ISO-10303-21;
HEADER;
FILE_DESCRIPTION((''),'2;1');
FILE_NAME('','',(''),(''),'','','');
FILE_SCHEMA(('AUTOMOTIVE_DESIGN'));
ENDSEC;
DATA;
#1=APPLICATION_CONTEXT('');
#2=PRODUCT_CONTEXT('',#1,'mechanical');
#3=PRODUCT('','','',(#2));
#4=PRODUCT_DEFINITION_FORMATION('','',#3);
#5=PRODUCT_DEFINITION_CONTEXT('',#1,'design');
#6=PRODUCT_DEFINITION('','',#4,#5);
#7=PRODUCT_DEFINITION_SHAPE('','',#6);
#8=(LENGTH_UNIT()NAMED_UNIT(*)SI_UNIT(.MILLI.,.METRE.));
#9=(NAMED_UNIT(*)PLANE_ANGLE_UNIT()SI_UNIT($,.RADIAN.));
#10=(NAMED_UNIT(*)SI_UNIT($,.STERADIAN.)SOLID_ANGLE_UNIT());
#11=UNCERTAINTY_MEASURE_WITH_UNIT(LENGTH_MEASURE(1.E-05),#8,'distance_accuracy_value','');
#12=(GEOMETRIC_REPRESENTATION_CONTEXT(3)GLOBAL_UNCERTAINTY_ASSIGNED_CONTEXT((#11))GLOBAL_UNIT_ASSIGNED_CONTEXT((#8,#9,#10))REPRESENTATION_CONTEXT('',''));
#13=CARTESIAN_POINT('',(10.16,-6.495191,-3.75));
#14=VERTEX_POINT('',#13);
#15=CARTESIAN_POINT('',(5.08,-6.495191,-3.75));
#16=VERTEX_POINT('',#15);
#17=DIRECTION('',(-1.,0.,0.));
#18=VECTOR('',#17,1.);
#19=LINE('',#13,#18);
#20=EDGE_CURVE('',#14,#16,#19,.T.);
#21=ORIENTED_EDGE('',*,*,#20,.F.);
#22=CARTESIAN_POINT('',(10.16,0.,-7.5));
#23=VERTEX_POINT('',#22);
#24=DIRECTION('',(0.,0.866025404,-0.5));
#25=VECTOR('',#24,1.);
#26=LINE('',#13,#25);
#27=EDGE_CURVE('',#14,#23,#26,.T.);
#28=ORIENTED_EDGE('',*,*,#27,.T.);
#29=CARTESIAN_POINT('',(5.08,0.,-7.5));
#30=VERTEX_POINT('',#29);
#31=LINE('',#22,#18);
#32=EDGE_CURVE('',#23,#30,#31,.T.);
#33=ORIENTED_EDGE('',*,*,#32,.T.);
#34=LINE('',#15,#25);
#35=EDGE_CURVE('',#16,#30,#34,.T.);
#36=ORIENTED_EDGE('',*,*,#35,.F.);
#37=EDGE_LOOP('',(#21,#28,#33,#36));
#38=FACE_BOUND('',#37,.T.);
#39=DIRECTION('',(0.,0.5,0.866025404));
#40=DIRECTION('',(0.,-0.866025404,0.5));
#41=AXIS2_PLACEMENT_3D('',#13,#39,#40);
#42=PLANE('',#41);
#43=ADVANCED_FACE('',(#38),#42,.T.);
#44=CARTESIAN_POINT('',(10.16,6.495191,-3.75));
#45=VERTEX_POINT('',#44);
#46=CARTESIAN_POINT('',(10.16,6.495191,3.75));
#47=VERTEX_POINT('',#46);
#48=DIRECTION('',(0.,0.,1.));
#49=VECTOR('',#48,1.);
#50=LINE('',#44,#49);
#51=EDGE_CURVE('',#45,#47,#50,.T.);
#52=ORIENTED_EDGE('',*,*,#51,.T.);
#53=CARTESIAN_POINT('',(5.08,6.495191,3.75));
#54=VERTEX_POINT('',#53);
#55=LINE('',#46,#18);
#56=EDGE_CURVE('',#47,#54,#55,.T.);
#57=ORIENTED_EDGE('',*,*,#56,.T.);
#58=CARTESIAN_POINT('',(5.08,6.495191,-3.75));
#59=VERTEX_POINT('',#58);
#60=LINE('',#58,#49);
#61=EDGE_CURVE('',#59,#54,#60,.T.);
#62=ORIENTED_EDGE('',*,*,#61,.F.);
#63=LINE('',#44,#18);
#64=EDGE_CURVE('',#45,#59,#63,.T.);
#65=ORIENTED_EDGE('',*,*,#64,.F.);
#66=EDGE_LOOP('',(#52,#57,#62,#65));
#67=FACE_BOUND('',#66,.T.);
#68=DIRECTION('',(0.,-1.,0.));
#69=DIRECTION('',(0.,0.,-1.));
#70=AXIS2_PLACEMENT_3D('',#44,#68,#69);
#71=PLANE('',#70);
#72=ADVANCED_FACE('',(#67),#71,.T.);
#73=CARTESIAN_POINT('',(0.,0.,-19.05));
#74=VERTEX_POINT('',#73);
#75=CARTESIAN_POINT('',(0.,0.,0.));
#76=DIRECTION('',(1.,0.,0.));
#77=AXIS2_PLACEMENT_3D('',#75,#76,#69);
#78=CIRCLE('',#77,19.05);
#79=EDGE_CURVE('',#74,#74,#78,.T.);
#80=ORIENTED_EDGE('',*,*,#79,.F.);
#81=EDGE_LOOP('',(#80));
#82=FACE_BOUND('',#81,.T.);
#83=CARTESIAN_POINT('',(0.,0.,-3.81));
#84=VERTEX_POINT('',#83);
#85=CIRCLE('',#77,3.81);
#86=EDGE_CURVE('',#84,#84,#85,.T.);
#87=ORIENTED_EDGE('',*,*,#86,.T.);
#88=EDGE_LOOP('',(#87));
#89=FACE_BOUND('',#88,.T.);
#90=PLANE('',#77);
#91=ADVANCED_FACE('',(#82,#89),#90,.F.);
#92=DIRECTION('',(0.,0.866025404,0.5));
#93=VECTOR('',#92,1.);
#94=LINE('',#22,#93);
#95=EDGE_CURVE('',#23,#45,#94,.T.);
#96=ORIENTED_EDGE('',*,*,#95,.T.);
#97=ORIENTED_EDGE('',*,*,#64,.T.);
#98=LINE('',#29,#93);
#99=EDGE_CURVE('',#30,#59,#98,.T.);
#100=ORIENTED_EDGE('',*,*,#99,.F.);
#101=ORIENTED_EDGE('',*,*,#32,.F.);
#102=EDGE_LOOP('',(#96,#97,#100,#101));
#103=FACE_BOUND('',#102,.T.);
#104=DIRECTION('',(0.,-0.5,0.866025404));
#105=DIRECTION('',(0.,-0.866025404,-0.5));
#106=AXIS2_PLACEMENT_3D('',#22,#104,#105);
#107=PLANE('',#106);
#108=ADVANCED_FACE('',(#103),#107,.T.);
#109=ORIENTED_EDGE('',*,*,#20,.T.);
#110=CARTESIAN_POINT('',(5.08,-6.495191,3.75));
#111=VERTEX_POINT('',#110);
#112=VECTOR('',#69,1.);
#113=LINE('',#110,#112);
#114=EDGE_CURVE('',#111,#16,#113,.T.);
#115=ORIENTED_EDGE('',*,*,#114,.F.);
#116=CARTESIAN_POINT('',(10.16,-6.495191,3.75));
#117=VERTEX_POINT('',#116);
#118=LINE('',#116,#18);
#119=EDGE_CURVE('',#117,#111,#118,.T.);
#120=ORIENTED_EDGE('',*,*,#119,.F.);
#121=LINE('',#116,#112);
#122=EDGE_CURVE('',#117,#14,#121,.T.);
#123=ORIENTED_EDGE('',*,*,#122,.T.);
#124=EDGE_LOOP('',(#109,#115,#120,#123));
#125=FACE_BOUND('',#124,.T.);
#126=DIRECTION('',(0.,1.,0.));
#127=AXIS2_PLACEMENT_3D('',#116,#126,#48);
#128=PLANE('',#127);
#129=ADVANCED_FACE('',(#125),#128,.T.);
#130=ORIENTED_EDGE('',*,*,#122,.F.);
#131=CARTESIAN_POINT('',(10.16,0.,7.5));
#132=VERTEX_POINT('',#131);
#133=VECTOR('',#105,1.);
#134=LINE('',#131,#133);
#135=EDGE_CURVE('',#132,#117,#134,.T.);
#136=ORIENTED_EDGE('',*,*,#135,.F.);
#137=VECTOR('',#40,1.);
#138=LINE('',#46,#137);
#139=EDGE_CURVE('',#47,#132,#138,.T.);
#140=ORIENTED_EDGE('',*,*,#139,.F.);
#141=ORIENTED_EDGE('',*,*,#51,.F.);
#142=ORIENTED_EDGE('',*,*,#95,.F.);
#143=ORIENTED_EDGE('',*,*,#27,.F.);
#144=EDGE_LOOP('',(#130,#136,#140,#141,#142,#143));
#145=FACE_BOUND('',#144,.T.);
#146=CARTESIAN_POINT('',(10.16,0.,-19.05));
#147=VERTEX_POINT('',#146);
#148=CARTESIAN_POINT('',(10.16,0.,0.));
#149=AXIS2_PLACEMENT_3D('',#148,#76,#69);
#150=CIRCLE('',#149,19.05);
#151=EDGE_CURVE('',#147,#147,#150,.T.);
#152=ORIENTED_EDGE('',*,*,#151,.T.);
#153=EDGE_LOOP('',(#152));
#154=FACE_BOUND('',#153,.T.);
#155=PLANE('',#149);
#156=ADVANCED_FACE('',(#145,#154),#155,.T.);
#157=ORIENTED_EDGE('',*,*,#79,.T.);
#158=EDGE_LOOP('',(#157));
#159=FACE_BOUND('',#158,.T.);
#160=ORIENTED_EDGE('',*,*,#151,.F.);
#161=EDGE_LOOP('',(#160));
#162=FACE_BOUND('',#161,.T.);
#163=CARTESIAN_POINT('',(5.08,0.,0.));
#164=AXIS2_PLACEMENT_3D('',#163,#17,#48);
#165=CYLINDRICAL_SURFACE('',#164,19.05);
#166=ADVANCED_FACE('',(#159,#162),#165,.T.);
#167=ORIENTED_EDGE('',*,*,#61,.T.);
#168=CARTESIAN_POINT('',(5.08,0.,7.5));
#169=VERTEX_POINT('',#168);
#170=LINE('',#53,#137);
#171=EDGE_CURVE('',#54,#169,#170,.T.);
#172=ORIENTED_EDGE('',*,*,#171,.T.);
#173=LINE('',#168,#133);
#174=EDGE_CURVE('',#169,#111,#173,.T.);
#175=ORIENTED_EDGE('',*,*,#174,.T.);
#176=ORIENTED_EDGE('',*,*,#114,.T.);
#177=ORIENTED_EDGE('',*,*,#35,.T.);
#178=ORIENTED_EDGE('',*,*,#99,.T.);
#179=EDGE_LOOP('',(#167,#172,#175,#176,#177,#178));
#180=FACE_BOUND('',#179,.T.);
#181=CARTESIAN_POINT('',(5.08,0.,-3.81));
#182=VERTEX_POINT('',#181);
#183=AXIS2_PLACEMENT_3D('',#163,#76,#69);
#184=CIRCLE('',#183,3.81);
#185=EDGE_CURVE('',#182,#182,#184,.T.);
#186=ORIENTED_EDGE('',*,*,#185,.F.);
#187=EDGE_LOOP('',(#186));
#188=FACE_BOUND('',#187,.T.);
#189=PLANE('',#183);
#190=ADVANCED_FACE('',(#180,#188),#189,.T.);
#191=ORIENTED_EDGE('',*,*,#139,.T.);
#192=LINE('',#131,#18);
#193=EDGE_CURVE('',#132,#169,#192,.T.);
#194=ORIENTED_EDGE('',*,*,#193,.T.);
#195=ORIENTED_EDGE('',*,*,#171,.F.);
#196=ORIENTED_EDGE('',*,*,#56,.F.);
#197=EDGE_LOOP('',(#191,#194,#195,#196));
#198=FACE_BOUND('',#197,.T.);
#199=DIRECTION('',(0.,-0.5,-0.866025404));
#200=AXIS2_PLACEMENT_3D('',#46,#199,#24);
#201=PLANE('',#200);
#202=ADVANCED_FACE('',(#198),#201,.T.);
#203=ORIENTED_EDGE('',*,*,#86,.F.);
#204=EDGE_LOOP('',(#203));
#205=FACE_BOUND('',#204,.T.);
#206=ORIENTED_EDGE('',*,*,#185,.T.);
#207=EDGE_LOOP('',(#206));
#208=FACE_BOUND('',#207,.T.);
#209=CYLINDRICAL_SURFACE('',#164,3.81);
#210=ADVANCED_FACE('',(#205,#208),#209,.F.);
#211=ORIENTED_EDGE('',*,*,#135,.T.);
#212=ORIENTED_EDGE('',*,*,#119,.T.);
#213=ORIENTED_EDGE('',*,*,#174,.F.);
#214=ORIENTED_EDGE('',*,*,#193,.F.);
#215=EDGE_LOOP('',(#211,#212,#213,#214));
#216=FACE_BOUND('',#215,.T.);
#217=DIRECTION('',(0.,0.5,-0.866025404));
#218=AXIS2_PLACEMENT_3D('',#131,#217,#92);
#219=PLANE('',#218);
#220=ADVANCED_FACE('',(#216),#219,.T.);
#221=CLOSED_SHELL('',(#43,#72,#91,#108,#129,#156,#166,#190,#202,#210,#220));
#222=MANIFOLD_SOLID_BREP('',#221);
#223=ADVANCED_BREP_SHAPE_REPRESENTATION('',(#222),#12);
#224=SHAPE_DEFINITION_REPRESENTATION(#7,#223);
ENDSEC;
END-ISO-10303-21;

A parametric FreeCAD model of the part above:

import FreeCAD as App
import Part
import Sketcher
Q = App.Units.Quantity

doc = App.newDocument("Part")
body = doc.addObject("PartDesign::Body", "Body")

# Sketch on YZ plane
sketch1 = doc.addObject("Sketcher::SketchObject", "Sketch")
body.addObject(sketch1)
sketch1.AttachmentSupport = (doc.YZ_Plane, [""])
sketch1.MapMode = "FlatFace"
sketch1.addGeometry(Part.Circle(App.Vector(0, 0, 0), App.Vector(0, 0, 1), 19.1), False)
sketch1.addGeometry(Part.Circle(App.Vector(0, 0, 0), App.Vector(0, 0, 1), 3.8), False)
sketch1.addConstraint(Sketcher.Constraint("Coincident", 0, 3, -1, 1))
sketch1.addConstraint(Sketcher.Constraint("Coincident", 1, 3, -1, 1))
sketch1.addConstraint(Sketcher.Constraint("Diameter", 0, Q("1.5 in")))
sketch1.addConstraint(Sketcher.Constraint("Diameter", 1, Q("0.3 in")))
pad1 = doc.addObject("PartDesign::Pad", "Pad")
body.addObject(pad1)
pad1.Profile = sketch1
pad1.Length = Q("0.2 in")

# Sketch on YZ plane
sketch2 = doc.addObject("Sketcher::SketchObject", "Sketch001")
body.addObject(sketch2)
sketch2.AttachmentSupport = (doc.YZ_Plane, [""])
sketch2.MapMode = "FlatFace"
sketch2.AttachmentOffset = App.Placement(App.Vector(0, 0, 0.2 * 25.4), App.Rotation())
sketch2.addGeometry(Part.Circle(App.Vector(0, 0, 0), App.Vector(0, 0, 1), 19), False)
sketch2.addGeometry(Part.LineSegment(App.Vector(6, -4, 0), App.Vector(0, -8, 0)), False)
sketch2.addGeometry(Part.LineSegment(App.Vector(0, -8, 0), App.Vector(-6, -4, 0)), False)
sketch2.addGeometry(Part.LineSegment(App.Vector(-6, -4, 0), App.Vector(-6, 4, 0)), False)
sketch2.addGeometry(Part.LineSegment(App.Vector(-6, 4, 0), App.Vector(0, 8, 0)), False)
sketch2.addGeometry(Part.LineSegment(App.Vector(0, 8, 0), App.Vector(6, 4, 0)), False)
sketch2.addGeometry(Part.LineSegment(App.Vector(6, 4, 0), App.Vector(6, -4, 0)), False)
sketch2.addConstraint(Sketcher.Constraint("Coincident", 1, 2, 2, 1))
sketch2.addConstraint(Sketcher.Constraint("Coincident", 2, 2, 3, 1))
sketch2.addConstraint(Sketcher.Constraint("Coincident", 3, 2, 4, 1))
sketch2.addConstraint(Sketcher.Constraint("Coincident", 4, 2, 5, 1))
sketch2.addConstraint(Sketcher.Constraint("Coincident", 5, 2, 6, 1))
sketch2.addConstraint(Sketcher.Constraint("Coincident", 6, 2, 1, 1))
sketch2.addConstraint(Sketcher.Constraint("Vertical", 3))
sketch2.addConstraint(Sketcher.Constraint("Vertical", 6))
sketch2.addConstraint(Sketcher.Constraint("Coincident", 0, 3, -1, 1))
sketch2.addConstraint(Sketcher.Constraint("Symmetric", 1, 2, 4, 2, -1, 1))
sketch2.addConstraint(Sketcher.Constraint("Symmetric", 2, 2, 5, 2, -1, 1))
sketch2.addConstraint(Sketcher.Constraint("PointOnObject", 1, 2, -2))
sketch2.addConstraint(Sketcher.Constraint("Parallel", 1, 4))
sketch2.addConstraint(Sketcher.Constraint("Horizontal", 3, 2, 5, 2))
sketch2.addConstraint(Sketcher.Constraint("Diameter", 0, Q("1.5 in")))
sketch2.addConstraint(Sketcher.Constraint("Angle", 1, Q("-150 deg")))
sketch2.addConstraint(Sketcher.Constraint("DistanceY", 3, 1, 3, 2, Q("7.5 mm")))
sketch2.addConstraint(Sketcher.Constraint("Distance", 1, Q("7.5 mm")))
pad2 = doc.addObject("PartDesign::Pad", "Pad001")
body.addObject(pad2)
pad2.Profile = sketch2
pad2.Length = Q("0.2 in")

doc.recompute()
